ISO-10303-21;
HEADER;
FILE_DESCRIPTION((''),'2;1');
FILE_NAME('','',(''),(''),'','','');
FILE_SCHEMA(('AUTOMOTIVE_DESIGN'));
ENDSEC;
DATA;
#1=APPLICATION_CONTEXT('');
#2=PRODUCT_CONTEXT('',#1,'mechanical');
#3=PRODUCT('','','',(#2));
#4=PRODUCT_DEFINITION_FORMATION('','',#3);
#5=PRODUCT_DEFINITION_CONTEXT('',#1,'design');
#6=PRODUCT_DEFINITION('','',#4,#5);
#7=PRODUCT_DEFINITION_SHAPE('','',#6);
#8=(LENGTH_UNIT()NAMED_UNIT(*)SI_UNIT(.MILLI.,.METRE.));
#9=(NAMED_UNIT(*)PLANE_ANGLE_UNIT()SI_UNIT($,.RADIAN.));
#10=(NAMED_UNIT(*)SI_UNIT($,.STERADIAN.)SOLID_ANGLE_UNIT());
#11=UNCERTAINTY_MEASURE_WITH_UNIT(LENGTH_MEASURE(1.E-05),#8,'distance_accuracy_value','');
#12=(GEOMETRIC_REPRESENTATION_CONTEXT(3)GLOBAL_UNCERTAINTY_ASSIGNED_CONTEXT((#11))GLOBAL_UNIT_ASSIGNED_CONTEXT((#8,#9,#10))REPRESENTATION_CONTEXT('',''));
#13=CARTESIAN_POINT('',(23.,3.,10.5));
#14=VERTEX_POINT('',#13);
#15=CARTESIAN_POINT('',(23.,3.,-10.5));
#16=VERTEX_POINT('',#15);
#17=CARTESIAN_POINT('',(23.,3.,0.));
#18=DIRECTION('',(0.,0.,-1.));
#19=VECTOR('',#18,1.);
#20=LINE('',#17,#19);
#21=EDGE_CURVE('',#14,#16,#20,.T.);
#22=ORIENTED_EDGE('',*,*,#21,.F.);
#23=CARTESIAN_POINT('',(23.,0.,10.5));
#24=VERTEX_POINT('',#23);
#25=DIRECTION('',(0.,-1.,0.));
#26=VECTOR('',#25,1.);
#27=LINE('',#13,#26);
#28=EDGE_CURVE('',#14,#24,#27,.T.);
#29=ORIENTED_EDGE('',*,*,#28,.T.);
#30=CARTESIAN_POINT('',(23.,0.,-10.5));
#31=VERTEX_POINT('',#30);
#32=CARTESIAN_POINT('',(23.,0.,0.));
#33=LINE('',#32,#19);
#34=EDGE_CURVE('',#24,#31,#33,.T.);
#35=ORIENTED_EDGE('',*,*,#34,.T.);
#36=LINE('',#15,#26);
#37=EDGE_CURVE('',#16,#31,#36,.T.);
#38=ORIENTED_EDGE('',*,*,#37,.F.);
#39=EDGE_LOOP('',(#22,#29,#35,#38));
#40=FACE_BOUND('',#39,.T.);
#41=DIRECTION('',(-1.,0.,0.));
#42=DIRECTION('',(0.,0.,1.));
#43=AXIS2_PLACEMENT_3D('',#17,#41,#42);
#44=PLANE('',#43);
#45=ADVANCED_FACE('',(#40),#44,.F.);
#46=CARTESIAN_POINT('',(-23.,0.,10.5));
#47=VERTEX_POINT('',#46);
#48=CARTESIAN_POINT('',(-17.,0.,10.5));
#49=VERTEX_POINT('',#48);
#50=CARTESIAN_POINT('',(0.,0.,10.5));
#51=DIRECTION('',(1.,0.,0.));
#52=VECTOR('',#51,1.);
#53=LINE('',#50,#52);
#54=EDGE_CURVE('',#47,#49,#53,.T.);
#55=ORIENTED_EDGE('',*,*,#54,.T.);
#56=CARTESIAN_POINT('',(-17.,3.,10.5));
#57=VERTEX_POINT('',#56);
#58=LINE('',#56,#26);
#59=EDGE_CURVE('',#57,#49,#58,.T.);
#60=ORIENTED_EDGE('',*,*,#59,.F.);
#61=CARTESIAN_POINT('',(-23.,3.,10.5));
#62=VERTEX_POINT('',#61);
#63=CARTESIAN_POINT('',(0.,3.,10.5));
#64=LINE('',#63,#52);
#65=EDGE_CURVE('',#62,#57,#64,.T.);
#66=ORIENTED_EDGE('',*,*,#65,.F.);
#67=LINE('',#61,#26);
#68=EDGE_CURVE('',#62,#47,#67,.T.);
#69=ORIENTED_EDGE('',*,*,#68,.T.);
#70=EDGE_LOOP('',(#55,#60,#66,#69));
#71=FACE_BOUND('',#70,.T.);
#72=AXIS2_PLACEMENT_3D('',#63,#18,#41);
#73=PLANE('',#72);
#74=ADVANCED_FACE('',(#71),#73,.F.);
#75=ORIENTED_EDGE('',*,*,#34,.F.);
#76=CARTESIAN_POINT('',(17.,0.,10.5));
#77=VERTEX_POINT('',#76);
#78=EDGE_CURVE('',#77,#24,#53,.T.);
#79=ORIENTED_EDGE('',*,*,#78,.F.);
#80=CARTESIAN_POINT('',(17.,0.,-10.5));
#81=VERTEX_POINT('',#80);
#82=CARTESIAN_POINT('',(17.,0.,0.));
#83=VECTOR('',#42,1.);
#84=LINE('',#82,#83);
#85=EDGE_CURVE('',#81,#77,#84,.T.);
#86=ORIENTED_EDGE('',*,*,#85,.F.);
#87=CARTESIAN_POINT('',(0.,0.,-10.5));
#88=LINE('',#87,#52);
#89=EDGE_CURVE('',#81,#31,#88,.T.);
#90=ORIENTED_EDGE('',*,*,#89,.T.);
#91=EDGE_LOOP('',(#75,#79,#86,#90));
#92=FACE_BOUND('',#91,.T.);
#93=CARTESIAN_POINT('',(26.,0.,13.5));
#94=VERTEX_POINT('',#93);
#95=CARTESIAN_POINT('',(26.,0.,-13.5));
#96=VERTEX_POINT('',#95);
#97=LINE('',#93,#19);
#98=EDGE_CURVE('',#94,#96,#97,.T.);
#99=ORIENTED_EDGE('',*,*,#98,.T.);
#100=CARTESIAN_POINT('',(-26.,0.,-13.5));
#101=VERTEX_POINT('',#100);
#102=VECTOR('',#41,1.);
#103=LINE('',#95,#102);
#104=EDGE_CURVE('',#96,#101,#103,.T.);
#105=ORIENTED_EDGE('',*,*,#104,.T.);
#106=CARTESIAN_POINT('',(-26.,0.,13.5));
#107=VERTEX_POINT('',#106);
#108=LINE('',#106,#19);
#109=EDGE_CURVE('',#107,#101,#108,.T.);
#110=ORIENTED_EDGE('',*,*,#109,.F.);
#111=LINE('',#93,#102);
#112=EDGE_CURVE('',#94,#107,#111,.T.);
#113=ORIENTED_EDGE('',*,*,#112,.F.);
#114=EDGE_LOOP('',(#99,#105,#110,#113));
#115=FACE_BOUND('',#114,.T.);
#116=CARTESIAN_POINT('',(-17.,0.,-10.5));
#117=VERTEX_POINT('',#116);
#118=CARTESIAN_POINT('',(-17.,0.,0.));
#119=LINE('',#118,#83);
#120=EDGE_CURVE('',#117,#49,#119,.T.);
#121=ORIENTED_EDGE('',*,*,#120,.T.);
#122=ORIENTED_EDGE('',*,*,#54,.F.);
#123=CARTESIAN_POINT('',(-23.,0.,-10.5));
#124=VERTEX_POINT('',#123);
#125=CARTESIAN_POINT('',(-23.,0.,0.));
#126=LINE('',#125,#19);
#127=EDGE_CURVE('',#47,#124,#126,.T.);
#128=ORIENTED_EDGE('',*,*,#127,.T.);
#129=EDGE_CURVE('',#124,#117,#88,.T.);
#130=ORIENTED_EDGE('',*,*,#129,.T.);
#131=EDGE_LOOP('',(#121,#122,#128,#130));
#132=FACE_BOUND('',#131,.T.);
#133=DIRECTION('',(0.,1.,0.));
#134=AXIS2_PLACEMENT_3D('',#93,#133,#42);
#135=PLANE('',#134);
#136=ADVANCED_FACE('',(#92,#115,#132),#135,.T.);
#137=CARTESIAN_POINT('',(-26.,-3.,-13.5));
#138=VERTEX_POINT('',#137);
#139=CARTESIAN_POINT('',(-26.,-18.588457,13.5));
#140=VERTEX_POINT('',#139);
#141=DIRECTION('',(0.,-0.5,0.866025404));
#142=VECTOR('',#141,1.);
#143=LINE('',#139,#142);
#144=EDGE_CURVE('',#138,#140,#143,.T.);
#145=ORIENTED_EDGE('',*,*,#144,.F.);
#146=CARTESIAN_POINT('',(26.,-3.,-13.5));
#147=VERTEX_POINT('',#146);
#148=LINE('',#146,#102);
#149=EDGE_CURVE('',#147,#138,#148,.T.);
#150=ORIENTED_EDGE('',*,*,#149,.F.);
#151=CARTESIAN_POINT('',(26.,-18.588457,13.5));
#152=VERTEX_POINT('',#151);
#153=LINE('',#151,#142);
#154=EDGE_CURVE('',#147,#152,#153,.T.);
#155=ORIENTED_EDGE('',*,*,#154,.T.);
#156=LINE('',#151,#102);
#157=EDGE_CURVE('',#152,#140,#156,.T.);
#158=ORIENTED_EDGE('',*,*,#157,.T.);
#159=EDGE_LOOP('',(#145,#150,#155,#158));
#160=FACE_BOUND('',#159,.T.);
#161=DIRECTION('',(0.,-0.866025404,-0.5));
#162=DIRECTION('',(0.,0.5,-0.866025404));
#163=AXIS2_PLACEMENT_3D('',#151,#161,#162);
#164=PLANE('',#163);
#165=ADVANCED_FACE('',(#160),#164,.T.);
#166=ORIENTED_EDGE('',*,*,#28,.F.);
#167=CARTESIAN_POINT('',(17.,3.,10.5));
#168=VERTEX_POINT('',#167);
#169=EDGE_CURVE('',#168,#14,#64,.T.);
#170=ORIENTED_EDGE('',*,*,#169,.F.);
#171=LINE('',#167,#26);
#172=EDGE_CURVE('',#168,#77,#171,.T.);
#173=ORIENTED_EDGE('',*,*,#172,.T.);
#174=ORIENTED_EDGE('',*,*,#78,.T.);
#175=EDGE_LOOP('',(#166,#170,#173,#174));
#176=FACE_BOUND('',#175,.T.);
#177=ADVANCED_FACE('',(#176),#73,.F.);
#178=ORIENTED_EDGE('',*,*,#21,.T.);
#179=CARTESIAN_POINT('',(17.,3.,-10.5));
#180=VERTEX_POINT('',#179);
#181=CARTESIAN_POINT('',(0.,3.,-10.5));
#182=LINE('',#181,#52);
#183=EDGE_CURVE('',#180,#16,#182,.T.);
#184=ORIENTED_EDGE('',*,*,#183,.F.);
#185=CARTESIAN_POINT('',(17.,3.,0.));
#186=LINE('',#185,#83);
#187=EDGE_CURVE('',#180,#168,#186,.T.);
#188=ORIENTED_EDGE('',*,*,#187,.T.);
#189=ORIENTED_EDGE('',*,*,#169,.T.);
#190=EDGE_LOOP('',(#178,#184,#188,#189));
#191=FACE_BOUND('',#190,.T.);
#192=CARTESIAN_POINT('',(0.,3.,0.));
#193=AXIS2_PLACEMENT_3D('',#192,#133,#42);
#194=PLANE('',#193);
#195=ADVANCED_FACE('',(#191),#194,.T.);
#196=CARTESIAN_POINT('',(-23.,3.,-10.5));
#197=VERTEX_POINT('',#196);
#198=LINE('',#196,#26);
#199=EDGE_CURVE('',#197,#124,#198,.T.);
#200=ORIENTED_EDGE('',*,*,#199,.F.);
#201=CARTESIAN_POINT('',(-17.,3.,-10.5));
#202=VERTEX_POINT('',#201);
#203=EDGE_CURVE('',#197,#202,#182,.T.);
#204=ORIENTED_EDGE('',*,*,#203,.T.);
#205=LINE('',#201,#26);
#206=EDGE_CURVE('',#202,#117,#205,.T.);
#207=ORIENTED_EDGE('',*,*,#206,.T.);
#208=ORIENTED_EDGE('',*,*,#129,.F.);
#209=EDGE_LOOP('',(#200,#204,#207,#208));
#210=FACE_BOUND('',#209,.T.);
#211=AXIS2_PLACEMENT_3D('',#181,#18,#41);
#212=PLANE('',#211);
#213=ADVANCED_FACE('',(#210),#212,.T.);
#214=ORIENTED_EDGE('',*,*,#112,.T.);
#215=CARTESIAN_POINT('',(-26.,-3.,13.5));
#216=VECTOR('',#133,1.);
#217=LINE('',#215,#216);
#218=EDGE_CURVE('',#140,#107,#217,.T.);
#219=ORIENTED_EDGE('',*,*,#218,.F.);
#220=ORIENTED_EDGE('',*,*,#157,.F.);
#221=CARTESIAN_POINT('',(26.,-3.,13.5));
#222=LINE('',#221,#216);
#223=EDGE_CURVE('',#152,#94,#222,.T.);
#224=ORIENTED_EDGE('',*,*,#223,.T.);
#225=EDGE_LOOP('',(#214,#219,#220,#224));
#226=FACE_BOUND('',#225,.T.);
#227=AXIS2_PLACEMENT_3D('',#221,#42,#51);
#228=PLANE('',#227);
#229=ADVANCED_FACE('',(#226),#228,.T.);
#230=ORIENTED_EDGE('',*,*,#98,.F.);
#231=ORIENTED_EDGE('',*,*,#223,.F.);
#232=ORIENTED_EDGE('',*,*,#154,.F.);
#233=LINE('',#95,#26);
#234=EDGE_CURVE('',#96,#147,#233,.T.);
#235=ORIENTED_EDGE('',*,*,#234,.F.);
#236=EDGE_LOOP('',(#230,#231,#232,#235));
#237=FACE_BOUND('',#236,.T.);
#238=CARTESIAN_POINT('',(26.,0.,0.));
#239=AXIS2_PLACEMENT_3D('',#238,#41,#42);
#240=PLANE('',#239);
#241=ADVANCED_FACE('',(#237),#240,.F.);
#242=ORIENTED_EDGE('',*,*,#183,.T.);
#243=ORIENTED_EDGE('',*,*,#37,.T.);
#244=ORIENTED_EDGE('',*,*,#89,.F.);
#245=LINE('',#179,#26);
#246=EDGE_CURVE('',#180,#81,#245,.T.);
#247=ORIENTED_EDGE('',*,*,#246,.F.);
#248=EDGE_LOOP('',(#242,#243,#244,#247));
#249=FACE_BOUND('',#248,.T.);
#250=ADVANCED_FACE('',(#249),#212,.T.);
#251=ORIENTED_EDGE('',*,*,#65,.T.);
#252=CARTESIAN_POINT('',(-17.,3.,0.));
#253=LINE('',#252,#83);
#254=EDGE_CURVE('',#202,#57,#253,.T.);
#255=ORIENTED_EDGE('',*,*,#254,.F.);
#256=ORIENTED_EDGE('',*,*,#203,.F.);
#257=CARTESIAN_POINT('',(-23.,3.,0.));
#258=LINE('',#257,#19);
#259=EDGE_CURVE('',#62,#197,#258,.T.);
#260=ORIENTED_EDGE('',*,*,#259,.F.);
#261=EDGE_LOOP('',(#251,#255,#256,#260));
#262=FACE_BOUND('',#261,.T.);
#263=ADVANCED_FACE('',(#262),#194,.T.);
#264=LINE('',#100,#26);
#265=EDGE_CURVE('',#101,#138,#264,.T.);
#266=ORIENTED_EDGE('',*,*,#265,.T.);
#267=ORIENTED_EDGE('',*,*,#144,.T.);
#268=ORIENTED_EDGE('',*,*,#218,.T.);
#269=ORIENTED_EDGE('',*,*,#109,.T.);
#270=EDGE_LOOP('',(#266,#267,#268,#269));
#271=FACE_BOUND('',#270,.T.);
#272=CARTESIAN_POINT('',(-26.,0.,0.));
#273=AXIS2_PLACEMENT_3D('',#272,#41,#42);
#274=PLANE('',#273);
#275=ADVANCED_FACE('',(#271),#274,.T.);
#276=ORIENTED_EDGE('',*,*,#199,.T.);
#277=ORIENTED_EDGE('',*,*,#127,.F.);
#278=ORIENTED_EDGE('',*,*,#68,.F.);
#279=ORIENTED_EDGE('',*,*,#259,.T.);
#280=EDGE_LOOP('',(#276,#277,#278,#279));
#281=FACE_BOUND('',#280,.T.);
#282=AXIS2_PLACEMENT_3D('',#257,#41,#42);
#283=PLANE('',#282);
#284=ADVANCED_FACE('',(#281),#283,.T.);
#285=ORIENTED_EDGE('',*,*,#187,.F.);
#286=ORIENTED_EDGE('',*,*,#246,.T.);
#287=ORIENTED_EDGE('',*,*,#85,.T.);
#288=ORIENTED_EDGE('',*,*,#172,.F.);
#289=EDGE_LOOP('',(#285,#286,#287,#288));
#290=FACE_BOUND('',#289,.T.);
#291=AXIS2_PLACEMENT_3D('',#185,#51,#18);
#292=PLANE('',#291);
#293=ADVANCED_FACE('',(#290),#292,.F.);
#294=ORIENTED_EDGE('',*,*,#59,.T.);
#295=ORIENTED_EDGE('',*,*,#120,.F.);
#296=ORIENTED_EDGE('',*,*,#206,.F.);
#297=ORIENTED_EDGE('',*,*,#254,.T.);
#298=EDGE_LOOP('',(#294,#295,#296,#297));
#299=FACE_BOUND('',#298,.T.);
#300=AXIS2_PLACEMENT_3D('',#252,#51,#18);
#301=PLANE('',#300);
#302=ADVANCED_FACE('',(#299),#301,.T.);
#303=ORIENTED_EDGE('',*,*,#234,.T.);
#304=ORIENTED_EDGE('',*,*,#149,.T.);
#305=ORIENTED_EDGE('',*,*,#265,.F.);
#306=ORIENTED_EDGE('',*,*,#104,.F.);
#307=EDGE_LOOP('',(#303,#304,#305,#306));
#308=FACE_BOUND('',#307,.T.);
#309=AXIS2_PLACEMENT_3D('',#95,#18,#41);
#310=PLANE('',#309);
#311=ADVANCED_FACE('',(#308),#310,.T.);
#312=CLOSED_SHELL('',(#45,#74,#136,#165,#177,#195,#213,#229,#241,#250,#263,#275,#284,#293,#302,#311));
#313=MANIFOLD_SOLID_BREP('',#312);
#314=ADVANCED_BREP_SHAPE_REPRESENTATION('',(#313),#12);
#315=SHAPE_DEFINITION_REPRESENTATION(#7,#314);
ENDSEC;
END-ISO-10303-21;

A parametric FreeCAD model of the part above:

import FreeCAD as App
import Part
import Sketcher

V = App.Vector
Q = App.Units.Quantity


def add_polygon(sketch, points):
    """Adds a closed chain of lines whose ends are joined by coincident constraints."""
    first, n = sketch.GeometryCount, len(points)
    for a, b in zip(points, points[1:] + points[:1]):
        sketch.addGeometry(Part.LineSegment(App.Vector(*a, 0), App.Vector(*b, 0)), False)
    for i in range(n):
        sketch.addConstraint(Sketcher.Constraint("Coincident", first + i, 2, first + (i + 1) % n, 1))

doc = App.newDocument("Part")
body = doc.addObject("PartDesign::Body", "Body")

# Sketch on XZ plane
sketch1 = body.newObject("Sketcher::SketchObject", "Sketch")
sketch1.AttachmentSupport = (doc.getObject("XZ_Plane"), [""])
sketch1.MapMode = "FlatFace"
add_polygon(sketch1, [(-23, -10), (-23, 10), (-17, 10), (-17, -10)])  # lines 0-3
sketch1.addConstraint(Sketcher.Constraint("Vertical", 0))
sketch1.addConstraint(Sketcher.Constraint("Horizontal", 1))
sketch1.addConstraint(Sketcher.Constraint("Vertical", 2))
sketch1.addConstraint(Sketcher.Constraint("Horizontal", 3))
sketch1.addConstraint(Sketcher.Constraint("DistanceX", 1, 1, 1, 2, 6.0))
sketch1.addConstraint(Sketcher.Constraint("DistanceY", 0, 1, 0, 2, 21.0))
sketch1.addConstraint(Sketcher.Constraint("DistanceX", 0, 2, -1, 1, 23.0))
sketch1.addConstraint(Sketcher.Constraint("DistanceY", -1, 1, 0, 2, 10.5))
pad1 = body.newObject("PartDesign::Pad", "Pad")
pad1.Profile = sketch1
pad1.Length = 3
pad1.Reversed = True
body2 = doc.addObject("PartDesign::Body", "Body001")

# Sketch on XZ plane
sketch2 = body2.newObject("Sketcher::SketchObject", "Sketch001")
sketch2.AttachmentSupport = (doc.getObject("XZ_Plane001"), [""])
sketch2.MapMode = "FlatFace"
add_polygon(sketch2, [(17, -10), (17, 10), (23, 10), (23, -10)])  # lines 0-3
sketch2.addConstraint(Sketcher.Constraint("Vertical", 0))
sketch2.addConstraint(Sketcher.Constraint("Horizontal", 1))
sketch2.addConstraint(Sketcher.Constraint("Vertical", 2))
sketch2.addConstraint(Sketcher.Constraint("Horizontal", 3))
sketch2.addConstraint(Sketcher.Constraint("DistanceX", 1, 1, 1, 2, 6.0))
sketch2.addConstraint(Sketcher.Constraint("DistanceY", 0, 1, 0, 2, 21.0))
sketch2.addConstraint(Sketcher.Constraint("DistanceX", -1, 1, 0, 2, 17.0))
sketch2.addConstraint(Sketcher.Constraint("DistanceY", -1, 1, 0, 2, 10.5))
pad2 = body2.newObject("PartDesign::Pad", "Pad001")
pad2.Profile = sketch2
pad2.Length = 3
pad2.Reversed = True
body3 = doc.addObject("PartDesign::Body", "Body002")

# Sketch on XZ plane
sketch3 = body3.newObject("Sketcher::SketchObject", "Sketch002")
sketch3.AttachmentSupport = (doc.getObject("XZ_Plane002"), [""])
sketch3.MapMode = "FlatFace"
add_polygon(sketch3, [(-26, -14), (-26, 14), (26, 14), (26, -14)])  # lines 0-3
sketch3.addConstraint(Sketcher.Constraint("Vertical", 0))
sketch3.addConstraint(Sketcher.Constraint("Horizontal", 1))
sketch3.addConstraint(Sketcher.Constraint("Vertical", 2))
sketch3.addConstraint(Sketcher.Constraint("Horizontal", 3))
sketch3.addConstraint(Sketcher.Constraint("Symmetric", 0, 2, 2, 2, -1, 1))
sketch3.addConstraint(Sketcher.Constraint("DistanceX", 1, 1, 1, 2, 52.0))
sketch3.addConstraint(Sketcher.Constraint("DistanceY", 0, 1, 0, 2, 27.0))
pad3 = body3.newObject("PartDesign::Pad", "Pad002")
pad3.Profile = sketch3
pad3.Length = 3
body.AllowCompound = True
doc.recompute()

boolean = body.newObject("PartDesign::Boolean", "Boolean")
boolean.Type = "Fuse"
boolean.addObjects([body2])
doc.recompute()

boolean2 = body.newObject("PartDesign::Boolean", "Boolean001")
boolean2.Type = "Fuse"
boolean2.addObjects([body3])

# Sketch on YZ plane
sketch4 = body.newObject("Sketcher::SketchObject", "Sketch003")
sketch4.AttachmentSupport = (doc.getObject("YZ_Plane"), [""])
sketch4.MapMode = "FlatFace"
sketch4.AttachmentOffset = App.Placement(V(0, 0, -26), App.Rotation())
add_polygon(sketch4, [(-18.6, 13.5), (0, 13.5), (0, -13.5), (-3, -13.5)])  # lines 0-3
sketch4.addConstraint(Sketcher.Constraint("Horizontal", 0))
sketch4.addConstraint(Sketcher.Constraint("Vertical", 1))
sketch4.addConstraint(Sketcher.Constraint("Horizontal", 2))
sketch4.addConstraint(Sketcher.Constraint("Symmetric", 0, 2, 1, 2, -1, 1))
sketch4.addConstraint(Sketcher.Constraint("DistanceX", 2, 2, 2, 1, 3.0))
sketch4.addConstraint(Sketcher.Constraint("DistanceY", 1, 2, 1, 1, 27.0))
sketch4.addConstraint(Sketcher.Constraint("Angle", 3, Q("120 deg")))
pad4 = body.newObject("PartDesign::Pad", "Pad003")
pad4.Profile = sketch4
pad4.Length = 52

doc.recompute()
